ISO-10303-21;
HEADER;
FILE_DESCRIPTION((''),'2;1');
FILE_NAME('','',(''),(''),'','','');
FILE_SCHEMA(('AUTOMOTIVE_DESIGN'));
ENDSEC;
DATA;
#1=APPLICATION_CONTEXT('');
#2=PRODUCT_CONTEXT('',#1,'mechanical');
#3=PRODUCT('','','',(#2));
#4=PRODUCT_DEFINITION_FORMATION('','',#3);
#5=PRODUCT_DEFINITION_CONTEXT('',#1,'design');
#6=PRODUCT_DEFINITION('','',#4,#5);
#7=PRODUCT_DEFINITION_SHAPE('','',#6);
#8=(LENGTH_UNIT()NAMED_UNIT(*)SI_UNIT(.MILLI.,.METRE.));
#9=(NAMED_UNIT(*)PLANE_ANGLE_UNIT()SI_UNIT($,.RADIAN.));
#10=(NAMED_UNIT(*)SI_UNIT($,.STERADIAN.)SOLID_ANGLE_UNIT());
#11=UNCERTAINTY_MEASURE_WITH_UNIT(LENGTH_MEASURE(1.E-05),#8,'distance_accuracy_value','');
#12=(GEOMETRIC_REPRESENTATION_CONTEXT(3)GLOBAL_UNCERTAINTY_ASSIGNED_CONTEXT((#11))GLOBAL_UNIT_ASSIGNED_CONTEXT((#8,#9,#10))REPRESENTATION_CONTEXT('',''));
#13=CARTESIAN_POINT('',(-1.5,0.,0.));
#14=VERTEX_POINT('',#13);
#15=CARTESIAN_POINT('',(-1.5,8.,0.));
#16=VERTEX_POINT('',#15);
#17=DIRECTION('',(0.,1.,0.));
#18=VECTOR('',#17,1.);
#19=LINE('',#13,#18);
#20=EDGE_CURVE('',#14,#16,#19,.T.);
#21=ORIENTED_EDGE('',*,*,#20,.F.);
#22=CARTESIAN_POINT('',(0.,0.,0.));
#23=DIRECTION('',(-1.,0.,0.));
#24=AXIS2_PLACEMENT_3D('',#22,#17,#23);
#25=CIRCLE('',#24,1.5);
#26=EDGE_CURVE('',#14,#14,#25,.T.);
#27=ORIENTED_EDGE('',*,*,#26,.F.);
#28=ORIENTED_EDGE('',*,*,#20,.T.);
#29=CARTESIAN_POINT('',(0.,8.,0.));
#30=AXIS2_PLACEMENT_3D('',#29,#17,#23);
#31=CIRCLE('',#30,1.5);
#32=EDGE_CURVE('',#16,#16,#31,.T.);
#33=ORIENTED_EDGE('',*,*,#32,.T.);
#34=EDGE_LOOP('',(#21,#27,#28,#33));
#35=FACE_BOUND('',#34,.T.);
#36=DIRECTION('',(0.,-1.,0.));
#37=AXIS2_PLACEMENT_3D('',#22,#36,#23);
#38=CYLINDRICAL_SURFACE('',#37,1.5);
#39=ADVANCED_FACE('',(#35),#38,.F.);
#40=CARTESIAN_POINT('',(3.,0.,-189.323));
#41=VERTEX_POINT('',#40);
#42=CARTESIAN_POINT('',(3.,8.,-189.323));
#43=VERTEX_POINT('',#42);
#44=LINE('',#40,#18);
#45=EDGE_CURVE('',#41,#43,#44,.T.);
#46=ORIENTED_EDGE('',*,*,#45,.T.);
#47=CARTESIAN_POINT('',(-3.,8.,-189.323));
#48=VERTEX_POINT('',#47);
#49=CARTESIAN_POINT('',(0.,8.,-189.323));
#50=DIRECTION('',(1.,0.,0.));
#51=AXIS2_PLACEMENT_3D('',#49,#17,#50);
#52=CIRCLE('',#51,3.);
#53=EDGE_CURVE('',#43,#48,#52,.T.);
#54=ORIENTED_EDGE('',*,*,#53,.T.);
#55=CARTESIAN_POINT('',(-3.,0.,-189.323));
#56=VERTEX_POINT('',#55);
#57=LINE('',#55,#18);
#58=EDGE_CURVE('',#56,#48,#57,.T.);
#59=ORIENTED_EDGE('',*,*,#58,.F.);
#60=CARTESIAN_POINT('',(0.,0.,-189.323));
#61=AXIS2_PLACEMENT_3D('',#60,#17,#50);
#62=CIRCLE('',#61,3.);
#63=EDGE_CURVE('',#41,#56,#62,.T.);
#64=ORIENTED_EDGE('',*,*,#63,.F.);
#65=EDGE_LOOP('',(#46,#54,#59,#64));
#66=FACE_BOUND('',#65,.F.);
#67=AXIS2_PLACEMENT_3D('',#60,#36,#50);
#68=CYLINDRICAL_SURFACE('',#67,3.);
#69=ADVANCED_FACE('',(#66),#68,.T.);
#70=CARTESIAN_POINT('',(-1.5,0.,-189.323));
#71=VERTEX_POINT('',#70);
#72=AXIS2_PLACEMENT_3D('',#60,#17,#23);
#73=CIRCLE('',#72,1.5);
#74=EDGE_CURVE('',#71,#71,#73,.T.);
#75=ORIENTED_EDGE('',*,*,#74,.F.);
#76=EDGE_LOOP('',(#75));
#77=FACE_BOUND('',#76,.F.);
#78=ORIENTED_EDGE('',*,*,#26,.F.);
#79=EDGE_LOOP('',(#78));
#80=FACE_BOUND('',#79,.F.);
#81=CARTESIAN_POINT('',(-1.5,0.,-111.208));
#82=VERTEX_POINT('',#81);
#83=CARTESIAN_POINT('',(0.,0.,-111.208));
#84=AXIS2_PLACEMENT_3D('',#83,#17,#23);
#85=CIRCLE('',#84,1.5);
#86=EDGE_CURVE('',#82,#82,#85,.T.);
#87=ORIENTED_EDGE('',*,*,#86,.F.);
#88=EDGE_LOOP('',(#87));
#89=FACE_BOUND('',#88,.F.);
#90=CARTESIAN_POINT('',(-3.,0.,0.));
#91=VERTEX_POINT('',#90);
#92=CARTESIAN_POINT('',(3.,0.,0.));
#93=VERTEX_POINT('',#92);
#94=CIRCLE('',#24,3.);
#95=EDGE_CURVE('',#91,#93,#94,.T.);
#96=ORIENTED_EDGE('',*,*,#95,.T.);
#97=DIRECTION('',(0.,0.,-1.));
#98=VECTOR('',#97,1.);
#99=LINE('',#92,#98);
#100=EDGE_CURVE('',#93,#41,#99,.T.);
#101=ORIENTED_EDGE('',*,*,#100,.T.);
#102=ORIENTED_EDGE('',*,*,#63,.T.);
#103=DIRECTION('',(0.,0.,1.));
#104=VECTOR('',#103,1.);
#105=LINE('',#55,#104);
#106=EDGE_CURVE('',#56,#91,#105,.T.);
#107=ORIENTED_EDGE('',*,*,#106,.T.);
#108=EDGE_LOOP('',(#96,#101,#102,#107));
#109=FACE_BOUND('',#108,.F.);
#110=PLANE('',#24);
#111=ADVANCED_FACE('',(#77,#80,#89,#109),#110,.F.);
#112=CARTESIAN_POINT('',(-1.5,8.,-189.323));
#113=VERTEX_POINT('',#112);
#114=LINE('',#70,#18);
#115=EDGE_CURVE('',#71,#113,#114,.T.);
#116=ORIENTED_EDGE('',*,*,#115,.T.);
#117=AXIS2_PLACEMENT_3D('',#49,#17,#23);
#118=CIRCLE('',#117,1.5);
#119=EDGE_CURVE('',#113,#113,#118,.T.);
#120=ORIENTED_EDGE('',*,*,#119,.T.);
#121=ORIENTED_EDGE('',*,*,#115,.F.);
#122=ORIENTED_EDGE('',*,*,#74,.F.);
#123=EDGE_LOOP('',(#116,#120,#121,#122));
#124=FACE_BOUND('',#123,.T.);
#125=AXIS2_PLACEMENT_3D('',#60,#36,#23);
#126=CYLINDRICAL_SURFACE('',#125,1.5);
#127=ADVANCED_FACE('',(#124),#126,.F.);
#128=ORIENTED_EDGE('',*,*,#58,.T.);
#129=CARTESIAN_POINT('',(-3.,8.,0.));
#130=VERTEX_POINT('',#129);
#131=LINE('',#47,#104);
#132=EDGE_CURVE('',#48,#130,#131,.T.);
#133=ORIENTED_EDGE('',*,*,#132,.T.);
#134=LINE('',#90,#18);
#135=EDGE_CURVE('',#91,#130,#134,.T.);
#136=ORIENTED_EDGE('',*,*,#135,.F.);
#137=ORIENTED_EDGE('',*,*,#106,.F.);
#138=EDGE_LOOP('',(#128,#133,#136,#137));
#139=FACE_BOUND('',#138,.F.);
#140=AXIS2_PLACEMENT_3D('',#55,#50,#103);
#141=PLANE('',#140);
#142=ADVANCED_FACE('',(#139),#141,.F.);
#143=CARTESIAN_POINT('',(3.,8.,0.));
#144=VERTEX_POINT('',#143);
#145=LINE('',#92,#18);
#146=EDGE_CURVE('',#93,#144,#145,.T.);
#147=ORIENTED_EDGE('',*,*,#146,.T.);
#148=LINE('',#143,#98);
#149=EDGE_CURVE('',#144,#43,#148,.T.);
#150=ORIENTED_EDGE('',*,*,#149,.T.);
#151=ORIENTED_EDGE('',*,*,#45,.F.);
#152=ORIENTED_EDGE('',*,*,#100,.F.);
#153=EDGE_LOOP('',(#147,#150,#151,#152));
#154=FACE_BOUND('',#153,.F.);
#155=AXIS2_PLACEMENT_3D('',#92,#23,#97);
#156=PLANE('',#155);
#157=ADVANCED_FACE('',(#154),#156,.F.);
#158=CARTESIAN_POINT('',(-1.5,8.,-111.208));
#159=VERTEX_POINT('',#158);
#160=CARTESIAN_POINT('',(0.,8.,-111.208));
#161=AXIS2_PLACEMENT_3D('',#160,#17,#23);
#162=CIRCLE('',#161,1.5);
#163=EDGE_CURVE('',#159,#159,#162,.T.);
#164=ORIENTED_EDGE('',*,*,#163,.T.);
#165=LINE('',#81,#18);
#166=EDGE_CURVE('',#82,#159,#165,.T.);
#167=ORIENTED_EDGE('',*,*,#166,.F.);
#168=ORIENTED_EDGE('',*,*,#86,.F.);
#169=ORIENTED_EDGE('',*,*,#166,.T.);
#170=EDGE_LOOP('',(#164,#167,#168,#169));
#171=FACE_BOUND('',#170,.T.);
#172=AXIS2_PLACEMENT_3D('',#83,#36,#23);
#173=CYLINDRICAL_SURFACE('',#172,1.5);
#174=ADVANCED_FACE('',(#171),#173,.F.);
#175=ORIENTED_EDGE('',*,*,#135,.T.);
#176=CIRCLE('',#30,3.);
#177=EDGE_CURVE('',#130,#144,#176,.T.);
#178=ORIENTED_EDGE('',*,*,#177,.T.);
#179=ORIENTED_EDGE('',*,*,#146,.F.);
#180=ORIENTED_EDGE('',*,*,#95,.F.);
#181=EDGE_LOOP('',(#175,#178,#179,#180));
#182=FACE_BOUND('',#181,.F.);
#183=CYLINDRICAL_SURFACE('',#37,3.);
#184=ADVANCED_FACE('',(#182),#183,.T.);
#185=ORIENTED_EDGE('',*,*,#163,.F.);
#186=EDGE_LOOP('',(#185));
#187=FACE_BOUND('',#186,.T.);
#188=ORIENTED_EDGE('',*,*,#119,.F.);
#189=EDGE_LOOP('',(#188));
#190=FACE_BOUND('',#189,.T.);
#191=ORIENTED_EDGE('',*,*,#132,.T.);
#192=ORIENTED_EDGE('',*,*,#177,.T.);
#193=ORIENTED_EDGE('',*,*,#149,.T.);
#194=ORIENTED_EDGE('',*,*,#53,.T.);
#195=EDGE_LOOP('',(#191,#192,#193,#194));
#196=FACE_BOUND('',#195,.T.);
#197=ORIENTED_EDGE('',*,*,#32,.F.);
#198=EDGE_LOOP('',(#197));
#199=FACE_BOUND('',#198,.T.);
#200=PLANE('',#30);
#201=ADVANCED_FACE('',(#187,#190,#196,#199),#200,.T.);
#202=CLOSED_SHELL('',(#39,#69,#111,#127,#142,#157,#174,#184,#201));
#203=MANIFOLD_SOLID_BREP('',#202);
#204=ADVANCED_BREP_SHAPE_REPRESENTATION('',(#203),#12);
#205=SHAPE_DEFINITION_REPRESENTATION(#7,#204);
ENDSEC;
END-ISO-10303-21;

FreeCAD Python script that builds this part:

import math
import FreeCAD as App
import Part
import Sketcher

V = App.Vector
Q = App.Units.Quantity

doc = App.newDocument("Part")
body = doc.addObject("PartDesign::Body", "Body")

# Sketch on XZ plane
sketch1 = body.newObject("Sketcher::SketchObject", "Sketch")
sketch1.AttachmentSupport = (doc.getObject("XZ_Plane"), [""])
sketch1.MapMode = "FlatFace"
sketch1.addGeometry([
    Part.ArcOfCircle(Part.Circle(V(0, 0, 0), V(0, 0, 1), 3), math.radians(0), math.radians(180)),  # 0
    Part.LineSegment(V(3, 0, 0), V(3, -189.3, 0)),  # 1
    Part.ArcOfCircle(Part.Circle(V(0, -189.3, 0), V(0, 0, 1), 3), math.radians(180), math.radians(360)),  # 2
    Part.LineSegment(V(-3, -189.3, 0), V(-3, 0, 0)),  # 3
    Part.Circle(V(0, -189.3, 0), V(0, 0, 1), 1.5),  # 4
    Part.Circle(V(0, -111.2, 0), V(0, 0, 1), 1.5),  # 5
    Part.Circle(V(0, 0, 0), V(0, 0, 1), 1.5),  # 6
], False)
sketch1.addConstraint([
    Sketcher.Constraint("Tangent", 0, 1, 1, 1),
    Sketcher.Constraint("Tangent", 1, 2, 2, 2),
    Sketcher.Constraint("Tangent", 2, 1, 3, 1),
    Sketcher.Constraint("Tangent", 3, 2, 0, 2),
    Sketcher.Constraint("Vertical", 1),
    Sketcher.Constraint("Vertical", 3),
    Sketcher.Constraint("Coincident", 0, 3, -1, 1),
    Sketcher.Constraint("Coincident", 6, 3, -1, 1),
    Sketcher.Constraint("Coincident", 4, 3, 2, 3),
    Sketcher.Constraint("Equal", 4, 5),
    Sketcher.Constraint("Equal", 5, 6),
    Sketcher.Constraint("PointOnObject", 5, 3, -2),
    Sketcher.Constraint("Diameter", 4, Q("3 mm")),
    Sketcher.Constraint("Radius", 0, Q("3 mm")),
    Sketcher.Constraint("DistanceY", 1, 2, 1, 1, Q("189.323 mm")),
    Sketcher.Constraint("DistanceY", 5, 3, -1, 1, Q("111.208 mm")),
])
pad1 = body.newObject("PartDesign::Pad", "Pad")
pad1.Profile = sketch1
pad1.Length = 8
pad1.Reversed = True

doc.recompute()
